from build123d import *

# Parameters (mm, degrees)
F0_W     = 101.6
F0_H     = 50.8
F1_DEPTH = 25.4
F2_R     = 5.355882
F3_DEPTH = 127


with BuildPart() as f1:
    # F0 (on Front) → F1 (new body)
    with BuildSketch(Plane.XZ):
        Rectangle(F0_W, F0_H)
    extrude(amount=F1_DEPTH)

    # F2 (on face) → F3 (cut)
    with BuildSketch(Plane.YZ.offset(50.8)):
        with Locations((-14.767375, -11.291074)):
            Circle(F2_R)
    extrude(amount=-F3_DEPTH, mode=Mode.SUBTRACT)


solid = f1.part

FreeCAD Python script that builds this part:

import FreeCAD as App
import Part
import Sketcher

V = App.Vector
Q = App.Units.Quantity

doc = App.newDocument("Part")
body = doc.addObject("PartDesign::Body", "Body")

sketch1 = body.newObject("Sketcher::SketchObject", "Sketch")
sketch1.AttachmentSupport = (doc.getObject("XZ_Plane"), [""])
sketch1.MapMode = "FlatFace"
sketch1.addGeometry([
    Part.LineSegment(V(-51, 25, 0), V(-51, -25, 0)),
    Part.LineSegment(V(-51, -25, 0), V(51, -25, 0)),
    Part.LineSegment(V(51, -25, 0), V(51, 25, 0)),
    Part.LineSegment(V(51, 25, 0), V(-51, 25, 0)),
], False)
sketch1.addConstraint([
    Sketcher.Constraint("Coincident", 0, 2, 1, 1),
    Sketcher.Constraint("Coincident", 1, 2, 2, 1),
    Sketcher.Constraint("Coincident", 2, 2, 3, 1),
    Sketcher.Constraint("Coincident", 3, 2, 0, 1),
    Sketcher.Constraint("Vertical", 0),
    Sketcher.Constraint("Horizontal", 1),
    Sketcher.Constraint("Vertical", 2),
    Sketcher.Constraint("Horizontal", 3),
    Sketcher.Constraint("Symmetric", 0, 2, 2, 2, -1, 1),
    Sketcher.Constraint("DistanceX", 1, 1, 1, 2, Q("4 in")),
    Sketcher.Constraint("DistanceY", 0, 2, 0, 1, Q("2 in")),
])
pad1 = body.newObject("PartDesign::Pad", "Pad")
pad1.Profile = sketch1
pad1.Length = Q("1 in")

sketch2 = body.newObject("Sketcher::SketchObject", "Sketch001")
sketch2.AttachmentSupport = (doc.getObject("YZ_Plane"), [""])
sketch2.MapMode = "FlatFace"
sketch2.AttachmentOffset = App.Placement(V(0, 0, 2 * 25.4), App.Rotation())
sketch2.addGeometry(Part.Circle(V(-15, -11, 0), V(0, 0, 1), 5), False)
sketch2.addConstraint([
    Sketcher.Constraint("Diameter", 0, 10.711764),
    Sketcher.Constraint("DistanceX", 0, 3, -1, 1, 14.767375),
    Sketcher.Constraint("DistanceY", 0, 3, -1, 1, 11.291074),
])
pocket1 = body.newObject("PartDesign::Pocket", "Pocket")
pocket1.Profile = sketch2
pocket1.Length = Q("5 in")

doc.recompute()
